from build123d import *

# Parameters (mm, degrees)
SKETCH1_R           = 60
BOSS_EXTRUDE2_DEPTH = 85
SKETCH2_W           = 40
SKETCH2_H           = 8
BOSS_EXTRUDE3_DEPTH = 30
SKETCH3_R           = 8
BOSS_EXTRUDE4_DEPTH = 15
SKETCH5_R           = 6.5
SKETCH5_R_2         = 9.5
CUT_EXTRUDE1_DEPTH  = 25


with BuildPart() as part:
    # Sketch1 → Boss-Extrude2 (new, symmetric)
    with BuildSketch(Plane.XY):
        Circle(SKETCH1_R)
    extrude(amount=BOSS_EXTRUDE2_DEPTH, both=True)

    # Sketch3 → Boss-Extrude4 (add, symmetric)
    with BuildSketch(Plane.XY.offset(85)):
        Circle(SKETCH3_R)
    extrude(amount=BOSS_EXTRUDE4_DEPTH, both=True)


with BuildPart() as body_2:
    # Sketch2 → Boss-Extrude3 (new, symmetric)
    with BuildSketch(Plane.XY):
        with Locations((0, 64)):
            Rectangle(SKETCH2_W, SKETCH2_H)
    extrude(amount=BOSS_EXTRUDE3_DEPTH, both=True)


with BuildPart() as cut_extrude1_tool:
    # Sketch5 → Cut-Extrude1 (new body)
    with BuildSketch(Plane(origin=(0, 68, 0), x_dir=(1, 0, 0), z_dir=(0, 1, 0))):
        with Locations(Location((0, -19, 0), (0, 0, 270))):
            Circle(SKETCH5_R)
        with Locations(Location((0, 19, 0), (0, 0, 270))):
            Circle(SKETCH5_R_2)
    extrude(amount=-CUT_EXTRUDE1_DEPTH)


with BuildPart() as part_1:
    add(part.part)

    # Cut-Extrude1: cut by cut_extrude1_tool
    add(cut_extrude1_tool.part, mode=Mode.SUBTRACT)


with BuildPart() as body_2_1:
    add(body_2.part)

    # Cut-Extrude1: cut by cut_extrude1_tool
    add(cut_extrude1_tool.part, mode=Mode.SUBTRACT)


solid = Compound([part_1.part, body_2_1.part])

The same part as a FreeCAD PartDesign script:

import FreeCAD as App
import Part
import Sketcher

V = App.Vector
Q = App.Units.Quantity


def add_polygon(sketch, points):
    """Adds a closed chain of lines whose ends are joined by coincident constraints."""
    first, n = sketch.GeometryCount, len(points)
    for a, b in zip(points, points[1:] + points[:1]):
        sketch.addGeometry(Part.LineSegment(App.Vector(*a, 0), App.Vector(*b, 0)), False)
    for i in range(n):
        sketch.addConstraint(Sketcher.Constraint("Coincident", first + i, 2, first + (i + 1) % n, 1))

doc = App.newDocument("Part")
body = doc.addObject("PartDesign::Body", "Body")

sketch1 = doc.addObject("Sketcher::SketchObject", "Sketch")
body.addObject(sketch1)
sketch1.AttachmentSupport = (doc.XY_Plane, [""])
sketch1.MapMode = "FlatFace"
sketch1.addGeometry(Part.Circle(V(0, 0, 0), V(0, 0, 1), 60), False)
sketch1.addConstraint([
    Sketcher.Constraint("Coincident", 0, 3, -1, 1),
    Sketcher.Constraint("Diameter", 0, Q("120 mm")),
])
pad1 = doc.addObject("PartDesign::Pad", "Pad")
body.addObject(pad1)
pad1.Profile = sketch1
pad1.Length = 170
pad1.Midplane = True

sketch2 = doc.addObject("Sketcher::SketchObject", "Sketch001")
body.addObject(sketch2)
sketch2.AttachmentSupport = (doc.XY_Plane, [""])
sketch2.MapMode = "FlatFace"
sketch2.AttachmentOffset = App.Placement(V(0, 0, 85), App.Rotation())
sketch2.addGeometry(Part.Circle(V(0, 0, 0), V(0, 0, 1), 8), False)
sketch2.addConstraint([
    Sketcher.Constraint("Coincident", 0, 3, -1, 1),
    Sketcher.Constraint("Diameter", 0, Q("16 mm")),
])
pad2 = doc.addObject("PartDesign::Pad", "Pad001")
body.addObject(pad2)
pad2.Profile = sketch2
pad2.Length = 30
pad2.Midplane = True
body2 = doc.addObject("PartDesign::Body", "Body001")

sketch3 = doc.addObject("Sketcher::SketchObject", "Sketch002")
body2.addObject(sketch3)
sketch3.AttachmentSupport = (doc.getObject("XY_Plane001"), [""])
sketch3.MapMode = "FlatFace"
add_polygon(sketch3, [(-20, 68), (-20, 60), (20, 60), (20, 68)])
sketch3.addConstraint([
    Sketcher.Constraint("Vertical", 0),
    Sketcher.Constraint("Horizontal", 1),
    Sketcher.Constraint("Vertical", 2),
    Sketcher.Constraint("Horizontal", 3),
    Sketcher.Constraint("DistanceX", 1, 1, 1, 2, Q("40 mm")),
    Sketcher.Constraint("DistanceY", 0, 2, 0, 1, Q("8 mm")),
    Sketcher.Constraint("DistanceX", 0, 2, -1, 1, Q("20 mm")),
    Sketcher.Constraint("DistanceY", -1, 1, 0, 2, Q("60 mm")),
])
pad3 = doc.addObject("PartDesign::Pad", "Pad002")
body2.addObject(pad3)
pad3.Profile = sketch3
pad3.Length = 60
pad3.Midplane = True
body3 = doc.addObject("PartDesign::Body", "Body002")
body3.AllowCompound = True

sketch4 = doc.addObject("Sketcher::SketchObject", "Sketch003")
body3.addObject(sketch4)
sketch4.AttachmentSupport = (doc.getObject("XZ_Plane002"), [""])
sketch4.MapMode = "FlatFace"
sketch4.AttachmentOffset = App.Placement(V(0, 0, -68), App.Rotation())
sketch4.addGeometry([
    Part.Circle(V(0, 19, 0), V(0, 0, 1), 6),
    Part.Circle(V(0, -19, 0), V(0, 0, 1), 10),
], False)
sketch4.addConstraint([
    Sketcher.Constraint("Symmetric", 0, 3, 1, 3, -1, 1),
    Sketcher.Constraint("PointOnObject", 0, 3, -2),
    Sketcher.Constraint("Diameter", 0, Q("13 mm")),
    Sketcher.Constraint("Diameter", 1, Q("19 mm")),
    Sketcher.Constraint("DistanceY", -1, 1, 0, 3, Q("19 mm")),
])
pad4 = doc.addObject("PartDesign::Pad", "Pad003")
body3.addObject(pad4)
pad4.Profile = sketch4
pad4.Length = 25
doc.recompute()

body4 = doc.addObject("PartDesign::Body", "Body003")
body4.BaseFeature = body3
boolean = doc.addObject("PartDesign::Boolean", "Boolean")
body.addObject(boolean)
boolean.Type = "Cut"
boolean.addObjects([body4])
doc.recompute()

boolean2 = doc.addObject("PartDesign::Boolean", "Boolean001")
body2.addObject(boolean2)
boolean2.Type = "Cut"
boolean2.addObjects([body3])

doc.recompute()
